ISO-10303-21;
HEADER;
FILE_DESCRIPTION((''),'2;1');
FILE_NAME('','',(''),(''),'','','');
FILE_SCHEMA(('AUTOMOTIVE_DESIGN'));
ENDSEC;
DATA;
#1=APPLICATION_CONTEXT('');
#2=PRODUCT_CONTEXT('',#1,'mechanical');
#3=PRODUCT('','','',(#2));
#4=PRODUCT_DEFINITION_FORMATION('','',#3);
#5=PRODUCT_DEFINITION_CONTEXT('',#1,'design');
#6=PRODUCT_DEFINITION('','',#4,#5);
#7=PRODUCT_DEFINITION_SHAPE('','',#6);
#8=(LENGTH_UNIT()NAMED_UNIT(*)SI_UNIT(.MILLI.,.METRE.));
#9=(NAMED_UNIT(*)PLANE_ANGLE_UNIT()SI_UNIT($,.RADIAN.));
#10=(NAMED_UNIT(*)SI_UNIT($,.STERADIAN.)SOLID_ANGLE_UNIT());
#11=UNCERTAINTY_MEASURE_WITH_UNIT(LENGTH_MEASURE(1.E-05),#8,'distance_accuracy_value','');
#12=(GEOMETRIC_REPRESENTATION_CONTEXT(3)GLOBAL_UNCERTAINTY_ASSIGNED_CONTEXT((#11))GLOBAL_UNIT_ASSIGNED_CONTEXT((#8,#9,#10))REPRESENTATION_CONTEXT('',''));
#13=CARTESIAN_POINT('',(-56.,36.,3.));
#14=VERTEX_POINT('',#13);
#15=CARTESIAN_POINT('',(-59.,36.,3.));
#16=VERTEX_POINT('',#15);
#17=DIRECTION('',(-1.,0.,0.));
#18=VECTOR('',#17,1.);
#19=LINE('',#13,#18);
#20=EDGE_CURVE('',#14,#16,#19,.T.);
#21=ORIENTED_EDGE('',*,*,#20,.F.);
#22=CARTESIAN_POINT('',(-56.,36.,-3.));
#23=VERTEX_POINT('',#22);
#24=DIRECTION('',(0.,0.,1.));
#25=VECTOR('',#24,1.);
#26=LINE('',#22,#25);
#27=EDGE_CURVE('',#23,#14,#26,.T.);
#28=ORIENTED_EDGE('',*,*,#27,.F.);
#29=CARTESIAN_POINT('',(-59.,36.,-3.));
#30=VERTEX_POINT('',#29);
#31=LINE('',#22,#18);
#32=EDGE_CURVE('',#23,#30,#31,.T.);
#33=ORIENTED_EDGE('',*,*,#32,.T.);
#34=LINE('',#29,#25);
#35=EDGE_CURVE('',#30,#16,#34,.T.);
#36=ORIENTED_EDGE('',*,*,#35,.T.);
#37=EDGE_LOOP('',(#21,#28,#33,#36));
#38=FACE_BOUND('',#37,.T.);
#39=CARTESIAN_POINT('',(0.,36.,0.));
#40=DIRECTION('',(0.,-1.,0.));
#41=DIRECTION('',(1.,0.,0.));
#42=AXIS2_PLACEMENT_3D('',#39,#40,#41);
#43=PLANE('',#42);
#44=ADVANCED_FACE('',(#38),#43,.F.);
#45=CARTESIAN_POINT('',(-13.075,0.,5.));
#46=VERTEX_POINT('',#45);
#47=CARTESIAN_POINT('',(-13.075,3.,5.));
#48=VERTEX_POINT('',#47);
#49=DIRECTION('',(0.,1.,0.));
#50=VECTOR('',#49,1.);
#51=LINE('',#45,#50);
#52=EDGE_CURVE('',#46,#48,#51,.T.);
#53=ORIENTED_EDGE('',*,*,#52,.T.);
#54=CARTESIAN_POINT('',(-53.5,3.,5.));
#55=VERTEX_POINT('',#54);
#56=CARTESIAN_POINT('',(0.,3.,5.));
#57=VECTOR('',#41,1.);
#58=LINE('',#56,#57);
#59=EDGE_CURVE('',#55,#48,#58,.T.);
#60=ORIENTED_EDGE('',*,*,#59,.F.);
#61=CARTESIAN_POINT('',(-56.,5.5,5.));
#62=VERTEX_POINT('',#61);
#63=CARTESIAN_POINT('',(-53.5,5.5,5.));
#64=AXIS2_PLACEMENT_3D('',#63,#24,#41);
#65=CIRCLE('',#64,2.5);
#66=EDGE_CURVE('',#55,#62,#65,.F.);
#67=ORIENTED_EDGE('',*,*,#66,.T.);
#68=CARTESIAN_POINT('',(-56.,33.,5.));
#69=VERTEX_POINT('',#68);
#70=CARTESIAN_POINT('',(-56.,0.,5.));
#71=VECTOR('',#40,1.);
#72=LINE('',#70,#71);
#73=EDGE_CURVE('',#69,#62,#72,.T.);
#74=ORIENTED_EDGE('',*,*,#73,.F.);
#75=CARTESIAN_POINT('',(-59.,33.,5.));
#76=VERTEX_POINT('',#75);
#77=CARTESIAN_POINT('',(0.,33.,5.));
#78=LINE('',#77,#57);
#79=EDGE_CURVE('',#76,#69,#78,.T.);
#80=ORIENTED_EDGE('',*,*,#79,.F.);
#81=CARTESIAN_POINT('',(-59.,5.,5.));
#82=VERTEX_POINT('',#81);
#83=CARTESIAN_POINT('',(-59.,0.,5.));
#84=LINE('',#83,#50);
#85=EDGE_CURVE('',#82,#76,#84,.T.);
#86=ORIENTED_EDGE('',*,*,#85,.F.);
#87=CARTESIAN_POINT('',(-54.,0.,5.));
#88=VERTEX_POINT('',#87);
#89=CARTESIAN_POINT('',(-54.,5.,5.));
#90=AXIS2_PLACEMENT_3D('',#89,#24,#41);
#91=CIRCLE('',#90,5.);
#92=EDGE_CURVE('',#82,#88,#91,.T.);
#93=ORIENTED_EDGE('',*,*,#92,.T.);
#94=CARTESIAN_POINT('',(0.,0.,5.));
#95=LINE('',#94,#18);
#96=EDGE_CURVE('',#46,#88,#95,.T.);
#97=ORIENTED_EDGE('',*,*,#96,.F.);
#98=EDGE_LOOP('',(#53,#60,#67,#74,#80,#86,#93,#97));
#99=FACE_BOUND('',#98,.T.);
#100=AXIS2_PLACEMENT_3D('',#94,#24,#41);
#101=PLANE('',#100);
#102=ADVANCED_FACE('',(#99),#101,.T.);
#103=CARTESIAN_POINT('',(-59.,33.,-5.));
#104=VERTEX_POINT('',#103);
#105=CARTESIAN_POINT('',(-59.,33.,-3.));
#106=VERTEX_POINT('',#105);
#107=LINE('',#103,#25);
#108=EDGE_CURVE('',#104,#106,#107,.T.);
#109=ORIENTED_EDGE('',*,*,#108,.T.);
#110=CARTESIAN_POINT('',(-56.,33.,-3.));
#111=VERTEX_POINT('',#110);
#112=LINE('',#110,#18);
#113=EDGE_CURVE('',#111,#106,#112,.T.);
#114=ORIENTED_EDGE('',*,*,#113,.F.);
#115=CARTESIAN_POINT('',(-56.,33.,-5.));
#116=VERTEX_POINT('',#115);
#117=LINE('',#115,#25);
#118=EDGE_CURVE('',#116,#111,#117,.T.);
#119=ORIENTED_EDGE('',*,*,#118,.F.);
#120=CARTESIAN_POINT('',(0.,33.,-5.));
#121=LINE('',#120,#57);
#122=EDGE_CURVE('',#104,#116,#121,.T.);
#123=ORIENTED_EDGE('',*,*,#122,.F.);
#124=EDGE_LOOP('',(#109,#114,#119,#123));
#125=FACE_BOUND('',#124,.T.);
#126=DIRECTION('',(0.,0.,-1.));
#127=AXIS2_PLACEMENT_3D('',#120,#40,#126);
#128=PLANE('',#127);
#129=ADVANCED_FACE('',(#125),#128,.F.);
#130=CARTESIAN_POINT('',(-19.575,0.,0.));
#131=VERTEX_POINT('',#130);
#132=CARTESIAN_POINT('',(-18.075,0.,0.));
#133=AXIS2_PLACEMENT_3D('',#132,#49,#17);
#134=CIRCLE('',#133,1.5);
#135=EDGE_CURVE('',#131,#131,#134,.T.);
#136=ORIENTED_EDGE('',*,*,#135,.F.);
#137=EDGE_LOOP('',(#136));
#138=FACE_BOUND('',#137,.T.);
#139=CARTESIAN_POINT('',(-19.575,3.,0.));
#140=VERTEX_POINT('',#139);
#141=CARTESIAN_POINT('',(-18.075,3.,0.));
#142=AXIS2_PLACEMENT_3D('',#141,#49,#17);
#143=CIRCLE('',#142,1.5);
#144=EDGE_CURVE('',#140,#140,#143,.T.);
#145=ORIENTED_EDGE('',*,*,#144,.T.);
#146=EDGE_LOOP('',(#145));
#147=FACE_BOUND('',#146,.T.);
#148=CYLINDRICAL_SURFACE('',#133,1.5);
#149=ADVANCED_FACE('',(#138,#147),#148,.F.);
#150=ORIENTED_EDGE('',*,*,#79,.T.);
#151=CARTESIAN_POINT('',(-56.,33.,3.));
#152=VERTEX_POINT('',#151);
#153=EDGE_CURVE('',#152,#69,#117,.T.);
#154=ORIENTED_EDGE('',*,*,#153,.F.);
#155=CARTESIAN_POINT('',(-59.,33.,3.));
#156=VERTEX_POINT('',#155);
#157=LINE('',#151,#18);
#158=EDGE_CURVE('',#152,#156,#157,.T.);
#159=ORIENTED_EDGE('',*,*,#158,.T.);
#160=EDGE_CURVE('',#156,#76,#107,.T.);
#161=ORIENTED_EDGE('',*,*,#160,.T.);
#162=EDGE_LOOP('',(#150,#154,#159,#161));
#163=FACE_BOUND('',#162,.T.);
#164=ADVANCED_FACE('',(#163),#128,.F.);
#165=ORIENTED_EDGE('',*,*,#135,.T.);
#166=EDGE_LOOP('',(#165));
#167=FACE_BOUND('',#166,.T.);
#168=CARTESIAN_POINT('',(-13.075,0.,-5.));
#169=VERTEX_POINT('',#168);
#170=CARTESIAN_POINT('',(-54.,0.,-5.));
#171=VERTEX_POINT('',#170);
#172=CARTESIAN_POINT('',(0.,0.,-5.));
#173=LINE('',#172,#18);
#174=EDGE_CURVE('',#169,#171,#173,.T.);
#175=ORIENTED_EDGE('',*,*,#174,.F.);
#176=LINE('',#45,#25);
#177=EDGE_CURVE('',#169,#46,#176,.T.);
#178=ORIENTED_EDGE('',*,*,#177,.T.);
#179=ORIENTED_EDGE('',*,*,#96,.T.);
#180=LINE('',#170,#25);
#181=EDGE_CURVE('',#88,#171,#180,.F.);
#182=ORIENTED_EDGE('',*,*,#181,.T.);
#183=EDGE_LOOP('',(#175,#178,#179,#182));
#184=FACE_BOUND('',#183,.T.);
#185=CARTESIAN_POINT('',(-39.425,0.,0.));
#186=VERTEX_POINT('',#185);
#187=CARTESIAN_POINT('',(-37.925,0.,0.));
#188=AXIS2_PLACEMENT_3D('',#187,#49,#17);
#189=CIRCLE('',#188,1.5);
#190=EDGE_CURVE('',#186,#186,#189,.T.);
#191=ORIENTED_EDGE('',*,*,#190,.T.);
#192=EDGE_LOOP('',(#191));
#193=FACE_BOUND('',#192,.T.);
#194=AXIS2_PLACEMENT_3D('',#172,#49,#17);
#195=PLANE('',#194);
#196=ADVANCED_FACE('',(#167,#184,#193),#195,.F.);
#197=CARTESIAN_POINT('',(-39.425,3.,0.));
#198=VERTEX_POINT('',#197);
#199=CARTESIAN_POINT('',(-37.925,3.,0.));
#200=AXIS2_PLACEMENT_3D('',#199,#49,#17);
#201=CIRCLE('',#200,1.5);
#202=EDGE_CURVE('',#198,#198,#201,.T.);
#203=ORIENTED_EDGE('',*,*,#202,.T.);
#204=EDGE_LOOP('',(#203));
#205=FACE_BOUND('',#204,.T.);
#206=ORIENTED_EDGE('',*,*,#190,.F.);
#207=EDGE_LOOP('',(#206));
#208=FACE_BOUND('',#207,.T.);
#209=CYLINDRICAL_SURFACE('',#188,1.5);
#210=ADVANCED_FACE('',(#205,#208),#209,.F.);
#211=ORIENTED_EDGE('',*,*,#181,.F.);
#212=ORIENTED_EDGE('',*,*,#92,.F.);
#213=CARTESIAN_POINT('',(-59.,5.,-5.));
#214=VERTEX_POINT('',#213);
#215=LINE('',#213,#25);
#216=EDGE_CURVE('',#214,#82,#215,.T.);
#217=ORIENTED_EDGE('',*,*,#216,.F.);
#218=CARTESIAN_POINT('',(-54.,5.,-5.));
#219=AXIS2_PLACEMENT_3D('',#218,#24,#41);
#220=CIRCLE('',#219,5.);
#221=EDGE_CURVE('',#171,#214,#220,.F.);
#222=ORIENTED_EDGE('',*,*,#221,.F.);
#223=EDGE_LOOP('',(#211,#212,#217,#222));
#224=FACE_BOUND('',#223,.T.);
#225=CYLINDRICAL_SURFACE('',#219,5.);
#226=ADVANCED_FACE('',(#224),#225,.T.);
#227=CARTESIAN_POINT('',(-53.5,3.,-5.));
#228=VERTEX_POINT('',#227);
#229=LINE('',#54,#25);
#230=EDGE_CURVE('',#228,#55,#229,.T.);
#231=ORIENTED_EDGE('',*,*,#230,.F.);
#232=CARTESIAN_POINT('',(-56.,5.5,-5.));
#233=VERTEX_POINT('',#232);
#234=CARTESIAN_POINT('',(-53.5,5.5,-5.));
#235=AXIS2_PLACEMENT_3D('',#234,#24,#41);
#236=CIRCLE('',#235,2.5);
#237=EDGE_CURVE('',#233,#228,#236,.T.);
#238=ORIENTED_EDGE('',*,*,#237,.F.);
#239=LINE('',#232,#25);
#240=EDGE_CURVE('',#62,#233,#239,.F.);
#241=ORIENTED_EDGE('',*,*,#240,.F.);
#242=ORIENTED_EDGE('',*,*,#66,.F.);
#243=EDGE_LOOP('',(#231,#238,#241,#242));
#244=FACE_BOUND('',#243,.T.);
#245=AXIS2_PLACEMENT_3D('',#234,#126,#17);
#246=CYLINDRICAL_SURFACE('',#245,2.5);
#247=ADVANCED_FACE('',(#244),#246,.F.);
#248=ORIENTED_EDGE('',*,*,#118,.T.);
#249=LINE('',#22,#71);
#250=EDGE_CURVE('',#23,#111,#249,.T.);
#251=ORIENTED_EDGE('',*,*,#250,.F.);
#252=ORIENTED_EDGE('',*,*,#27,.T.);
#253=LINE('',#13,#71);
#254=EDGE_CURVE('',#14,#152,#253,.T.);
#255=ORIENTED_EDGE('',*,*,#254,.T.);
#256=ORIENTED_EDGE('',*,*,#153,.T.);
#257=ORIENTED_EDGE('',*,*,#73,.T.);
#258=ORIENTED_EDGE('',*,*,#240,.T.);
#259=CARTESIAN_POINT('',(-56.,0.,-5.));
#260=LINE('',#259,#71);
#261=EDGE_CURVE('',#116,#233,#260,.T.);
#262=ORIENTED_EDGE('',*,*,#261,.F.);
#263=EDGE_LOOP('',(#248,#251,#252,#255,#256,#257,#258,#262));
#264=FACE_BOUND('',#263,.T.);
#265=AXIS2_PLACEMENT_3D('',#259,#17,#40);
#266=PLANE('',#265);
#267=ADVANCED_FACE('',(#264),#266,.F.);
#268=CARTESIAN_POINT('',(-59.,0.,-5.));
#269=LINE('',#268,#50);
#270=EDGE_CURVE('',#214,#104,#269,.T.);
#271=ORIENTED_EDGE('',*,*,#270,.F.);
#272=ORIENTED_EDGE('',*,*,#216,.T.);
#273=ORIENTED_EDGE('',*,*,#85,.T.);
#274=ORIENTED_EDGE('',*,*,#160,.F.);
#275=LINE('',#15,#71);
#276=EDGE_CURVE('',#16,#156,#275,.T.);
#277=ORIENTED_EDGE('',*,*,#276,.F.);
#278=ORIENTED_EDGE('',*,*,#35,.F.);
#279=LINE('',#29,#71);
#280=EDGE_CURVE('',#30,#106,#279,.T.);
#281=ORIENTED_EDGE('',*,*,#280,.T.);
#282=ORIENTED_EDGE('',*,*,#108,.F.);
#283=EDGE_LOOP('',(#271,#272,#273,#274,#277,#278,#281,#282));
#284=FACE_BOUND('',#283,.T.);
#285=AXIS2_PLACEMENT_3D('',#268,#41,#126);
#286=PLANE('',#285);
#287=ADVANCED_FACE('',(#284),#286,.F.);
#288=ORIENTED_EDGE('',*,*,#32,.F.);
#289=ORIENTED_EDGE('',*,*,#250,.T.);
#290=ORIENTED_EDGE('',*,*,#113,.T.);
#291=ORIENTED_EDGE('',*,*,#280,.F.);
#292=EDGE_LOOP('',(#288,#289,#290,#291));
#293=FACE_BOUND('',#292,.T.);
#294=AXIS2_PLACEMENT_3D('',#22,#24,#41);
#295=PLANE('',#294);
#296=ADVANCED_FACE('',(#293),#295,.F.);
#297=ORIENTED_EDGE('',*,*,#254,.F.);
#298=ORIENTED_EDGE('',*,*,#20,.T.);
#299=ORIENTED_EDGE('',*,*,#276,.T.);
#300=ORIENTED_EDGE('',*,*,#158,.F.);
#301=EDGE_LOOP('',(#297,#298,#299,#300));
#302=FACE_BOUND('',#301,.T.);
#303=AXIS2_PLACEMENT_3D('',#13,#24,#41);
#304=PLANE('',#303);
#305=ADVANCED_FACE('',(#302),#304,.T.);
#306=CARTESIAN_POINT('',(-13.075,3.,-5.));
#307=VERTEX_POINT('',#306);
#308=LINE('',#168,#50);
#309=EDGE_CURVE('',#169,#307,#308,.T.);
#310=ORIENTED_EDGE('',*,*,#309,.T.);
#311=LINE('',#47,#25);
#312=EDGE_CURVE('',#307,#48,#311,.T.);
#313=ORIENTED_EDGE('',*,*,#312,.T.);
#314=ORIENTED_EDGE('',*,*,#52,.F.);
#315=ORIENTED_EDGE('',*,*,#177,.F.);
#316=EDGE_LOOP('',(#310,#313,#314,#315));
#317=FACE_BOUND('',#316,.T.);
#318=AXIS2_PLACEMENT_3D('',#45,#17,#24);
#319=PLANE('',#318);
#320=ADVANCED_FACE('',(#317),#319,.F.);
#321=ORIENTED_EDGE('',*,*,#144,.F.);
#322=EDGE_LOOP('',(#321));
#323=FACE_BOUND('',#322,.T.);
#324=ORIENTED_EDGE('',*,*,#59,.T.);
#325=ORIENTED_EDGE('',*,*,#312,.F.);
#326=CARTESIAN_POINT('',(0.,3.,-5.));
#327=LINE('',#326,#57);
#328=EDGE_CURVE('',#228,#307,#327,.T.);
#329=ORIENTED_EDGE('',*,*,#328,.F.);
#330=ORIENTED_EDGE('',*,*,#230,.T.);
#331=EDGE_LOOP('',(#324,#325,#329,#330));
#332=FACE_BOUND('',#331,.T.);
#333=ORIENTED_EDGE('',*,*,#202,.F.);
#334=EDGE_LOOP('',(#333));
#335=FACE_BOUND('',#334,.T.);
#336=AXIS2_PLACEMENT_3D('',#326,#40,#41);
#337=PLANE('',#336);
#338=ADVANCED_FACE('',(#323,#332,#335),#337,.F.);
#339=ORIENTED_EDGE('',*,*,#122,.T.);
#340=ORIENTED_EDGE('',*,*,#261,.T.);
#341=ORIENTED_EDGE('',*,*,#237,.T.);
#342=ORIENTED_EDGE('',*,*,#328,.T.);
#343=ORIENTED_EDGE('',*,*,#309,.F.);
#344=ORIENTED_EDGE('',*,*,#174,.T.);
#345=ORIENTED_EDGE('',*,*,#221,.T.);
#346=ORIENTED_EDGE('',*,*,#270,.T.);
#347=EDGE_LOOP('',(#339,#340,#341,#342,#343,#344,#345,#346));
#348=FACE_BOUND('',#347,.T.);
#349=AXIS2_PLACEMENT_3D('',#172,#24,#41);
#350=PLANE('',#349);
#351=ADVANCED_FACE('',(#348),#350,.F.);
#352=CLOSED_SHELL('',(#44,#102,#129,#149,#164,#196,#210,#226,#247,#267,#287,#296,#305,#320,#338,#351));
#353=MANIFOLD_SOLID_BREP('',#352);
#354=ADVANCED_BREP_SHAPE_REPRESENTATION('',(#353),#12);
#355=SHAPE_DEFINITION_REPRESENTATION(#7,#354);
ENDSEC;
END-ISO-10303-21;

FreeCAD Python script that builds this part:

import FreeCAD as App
import Part
import Sketcher

V = App.Vector


def edges_at(feature, points):
    """Names of the edges that pass closest to the given points."""
    edges = feature.Shape.Edges
    near = lambda p: min(range(len(edges)), key=lambda i: edges[i].distToShape(Part.Vertex(*p))[0])
    return sorted({f"Edge{near(p) + 1}" for p in points})

doc = App.newDocument("Part")
params = doc.addObject("Spreadsheet::Sheet", "Params")
for row, (alias, value) in enumerate([
    ("sketch1_width", "56 mm"),
    ("sketch1_width2", "3 mm"),
    ("sketch1_height", "30 mm"),
    ("pad1_length", "10 mm"),
    ("sketch2_diameter", "3 mm"),
    ("pocket1_length", "3 mm"),
    ("fillet_radius", "5 mm"),
    ("fillet2_radius", "2.5 mm"),
    ("sketch3_height", "10 mm"),
    ("pocket2_length", "3 mm"),
    ("sketch4_width", "3 mm"),
    ("sketch4_height", "6 mm"),
    ("pad2_length", "3 mm"),
], start=1):
    params.set(f"A{row}", alias)
    params.set(f"B{row}", "=" + value)
    params.setAlias(f"B{row}", alias)

body = doc.addObject("PartDesign::Body", "Body")

# Sketch on XY plane
sketch1 = doc.addObject("Sketcher::SketchObject", "Sketch")
body.addObject(sketch1)
sketch1.AttachmentSupport = (doc.XY_Plane, [""])
sketch1.MapMode = "FlatFace"
sketch1.addGeometry(Part.LineSegment(V(0, 0, 0), V(0, 3, 0)), False)
sketch1.addGeometry(Part.LineSegment(V(0, 3, 0), V(-56, 3, 0)), False)
sketch1.addGeometry(Part.LineSegment(V(-56, 3, 0), V(-56, 33, 0)), False)
sketch1.addGeometry(Part.LineSegment(V(-56, 33, 0), V(-59, 33, 0)), False)
sketch1.addGeometry(Part.LineSegment(V(-59, 33, 0), V(-59, 0, 0)), False)
sketch1.addGeometry(Part.LineSegment(V(-59, 0, 0), V(0, 0, 0)), False)
sketch1.addConstraint(Sketcher.Constraint("Coincident", 0, 2, 1, 1))
sketch1.addConstraint(Sketcher.Constraint("Coincident", 1, 2, 2, 1))
sketch1.addConstraint(Sketcher.Constraint("Coincident", 2, 2, 3, 1))
sketch1.addConstraint(Sketcher.Constraint("Coincident", 3, 2, 4, 1))
sketch1.addConstraint(Sketcher.Constraint("Coincident", 4, 2, 5, 1))
sketch1.addConstraint(Sketcher.Constraint("Coincident", 5, 2, 0, 1))
sketch1.addConstraint(Sketcher.Constraint("Vertical", 0))
sketch1.addConstraint(Sketcher.Constraint("Horizontal", 1))
sketch1.addConstraint(Sketcher.Constraint("Vertical", 2))
sketch1.addConstraint(Sketcher.Constraint("Horizontal", 3))
sketch1.addConstraint(Sketcher.Constraint("Vertical", 4))
sketch1.addConstraint(Sketcher.Constraint("Horizontal", 5))
sketch1.addConstraint(Sketcher.Constraint("Coincident", 5, 2, -1, 1))
sketch1.addConstraint(Sketcher.Constraint("Equal", 3, 0))
sketch1.addConstraint(Sketcher.Constraint("DistanceX", 1, 2, 1, 1, 56.0))
sketch1.addConstraint(Sketcher.Constraint("DistanceX", 3, 2, 3, 1, 3.0))
sketch1.addConstraint(Sketcher.Constraint("DistanceY", 2, 1, 2, 2, 30.0))
sketch1.setExpression("Constraints[14]", "Params.sketch1_width")
sketch1.setExpression("Constraints[15]", "Params.sketch1_width2")
sketch1.setExpression("Constraints[16]", "Params.sketch1_height")
pad1 = doc.addObject("PartDesign::Pad", "Pad")
body.addObject(pad1)
pad1.Profile = sketch1
pad1.setExpression("Length", "Params.pad1_length")
pad1.Midplane = True

# Sketch on XZ plane
sketch2 = doc.addObject("Sketcher::SketchObject", "Sketch001")
body.addObject(sketch2)
sketch2.AttachmentSupport = (doc.XZ_Plane, [""])
sketch2.MapMode = "FlatFace"
sketch2.AttachmentOffset = App.Placement(V(0, 0, -3), App.Rotation())
sketch2.addGeometry(Part.Circle(V(-18.1, 0, 0), V(0, 0, 1), 1.5), False)
sketch2.addGeometry(Part.Circle(V(-37.9, 0, 0), V(0, 0, 1), 1.5), False)
sketch2.addConstraint(Sketcher.Constraint("Equal", 0, 1))
sketch2.addConstraint(Sketcher.Constraint("PointOnObject", 0, 3, -1))
sketch2.addConstraint(Sketcher.Constraint("PointOnObject", 1, 3, -1))
sketch2.addConstraint(Sketcher.Constraint("Diameter", 0, 3.0))
sketch2.addConstraint(Sketcher.Constraint("DistanceX", 1, 3, 0, 3, 19.85))
sketch2.addConstraint(Sketcher.Constraint("DistanceX", 0, 3, -1, 1, 18.075))
sketch2.setExpression("Constraints[3]", "Params.sketch2_diameter")
pocket1 = doc.addObject("PartDesign::Pocket", "Pocket")
body.addObject(pocket1)
pocket1.Profile = sketch2
pocket1.setExpression("Length", "Params.pocket1_length")
pocket1.Reversed = True
doc.recompute()

fillet = doc.addObject("PartDesign::Fillet", "Fillet")
body.addObject(fillet)
fillet.Base = (pocket1, edges_at(pocket1, [(-59, 0, 0)]))
fillet.setExpression("Radius", "Params.fillet_radius")
doc.recompute()

fillet2 = doc.addObject("PartDesign::Fillet", "Fillet001")
body.addObject(fillet2)
fillet2.Base = (fillet, edges_at(fillet, [(-56, 3, 0)]))
fillet2.setExpression("Radius", "Params.fillet2_radius")

# Sketch on XZ plane
sketch3 = doc.addObject("Sketcher::SketchObject", "Sketch002")
body.addObject(sketch3)
sketch3.AttachmentSupport = (doc.XZ_Plane, [""])
sketch3.MapMode = "FlatFace"
sketch3.AttachmentOffset = App.Placement(V(0, 0, -3), App.Rotation())
sketch3.addGeometry(Part.LineSegment(V(-13, -5, 0), V(-13, 5, 0)), False)
sketch3.addGeometry(Part.LineSegment(V(-13, 5, 0), V(0, 5, 0)), False)
sketch3.addGeometry(Part.LineSegment(V(0, 5, 0), V(0, -5, 0)), False)
sketch3.addGeometry(Part.LineSegment(V(0, -5, 0), V(-13, -5, 0)), False)
sketch3.addConstraint(Sketcher.Constraint("Coincident", 0, 2, 1, 1))
sketch3.addConstraint(Sketcher.Constraint("Coincident", 1, 2, 2, 1))
sketch3.addConstraint(Sketcher.Constraint("Coincident", 2, 2, 3, 1))
sketch3.addConstraint(Sketcher.Constraint("Coincident", 3, 2, 0, 1))
sketch3.addConstraint(Sketcher.Constraint("Vertical", 0))
sketch3.addConstraint(Sketcher.Constraint("Horizontal", 1))
sketch3.addConstraint(Sketcher.Constraint("Vertical", 2))
sketch3.addConstraint(Sketcher.Constraint("Horizontal", 3))
sketch3.addConstraint(Sketcher.Constraint("Symmetric", 1, 2, 2, 2, -1, 1))
sketch3.addConstraint(Sketcher.Constraint("DistanceY", 0, 1, 0, 2, 10.0))
sketch3.addConstraint(Sketcher.Constraint("DistanceX", 1, 1, 1, 2, 13.075))
sketch3.setExpression("Constraints[9]", "Params.sketch3_height")
pocket2 = doc.addObject("PartDesign::Pocket", "Pocket001")
body.addObject(pocket2)
pocket2.Profile = sketch3
pocket2.setExpression("Length", "Params.pocket2_length")
pocket2.Reversed = True

# Sketch on XZ plane
sketch4 = doc.addObject("Sketcher::SketchObject", "Sketch003")
body.addObject(sketch4)
sketch4.AttachmentSupport = (doc.XZ_Plane, [""])
sketch4.MapMode = "FlatFace"
sketch4.AttachmentOffset = App.Placement(V(0, 0, -33), App.Rotation())
sketch4.addGeometry(Part.LineSegment(V(-59, -3, 0), V(-59, 3, 0)), False)
sketch4.addGeometry(Part.LineSegment(V(-59, 3, 0), V(-56, 3, 0)), False)
sketch4.addGeometry(Part.LineSegment(V(-56, 3, 0), V(-56, -3, 0)), False)
sketch4.addGeometry(Part.LineSegment(V(-56, -3, 0), V(-59, -3, 0)), False)
sketch4.addConstraint(Sketcher.Constraint("Coincident", 0, 2, 1, 1))
sketch4.addConstraint(Sketcher.Constraint("Coincident", 1, 2, 2, 1))
sketch4.addConstraint(Sketcher.Constraint("Coincident", 2, 2, 3, 1))
sketch4.addConstraint(Sketcher.Constraint("Coincident", 3, 2, 0, 1))
sketch4.addConstraint(Sketcher.Constraint("Vertical", 0))
sketch4.addConstraint(Sketcher.Constraint("Horizontal", 1))
sketch4.addConstraint(Sketcher.Constraint("Vertical", 2))
sketch4.addConstraint(Sketcher.Constraint("Horizontal", 3))
sketch4.addConstraint(Sketcher.Constraint("DistanceX", 1, 1, 1, 2, 3.0))
sketch4.addConstraint(Sketcher.Constraint("DistanceY", 0, 1, 0, 2, 6.0))
sketch4.addConstraint(Sketcher.Constraint("DistanceX", 0, 2, -1, 1, 59.0))
sketch4.addConstraint(Sketcher.Constraint("DistanceY", -1, 1, 0, 2, 3.0))
sketch4.setExpression("Constraints[8]", "Params.sketch4_width")
sketch4.setExpression("Constraints[9]", "Params.sketch4_height")
pad2 = doc.addObject("PartDesign::Pad", "Pad001")
body.addObject(pad2)
pad2.Profile = sketch4
pad2.setExpression("Length", "Params.pad2_length")
pad2.Reversed = True

doc.recompute()
